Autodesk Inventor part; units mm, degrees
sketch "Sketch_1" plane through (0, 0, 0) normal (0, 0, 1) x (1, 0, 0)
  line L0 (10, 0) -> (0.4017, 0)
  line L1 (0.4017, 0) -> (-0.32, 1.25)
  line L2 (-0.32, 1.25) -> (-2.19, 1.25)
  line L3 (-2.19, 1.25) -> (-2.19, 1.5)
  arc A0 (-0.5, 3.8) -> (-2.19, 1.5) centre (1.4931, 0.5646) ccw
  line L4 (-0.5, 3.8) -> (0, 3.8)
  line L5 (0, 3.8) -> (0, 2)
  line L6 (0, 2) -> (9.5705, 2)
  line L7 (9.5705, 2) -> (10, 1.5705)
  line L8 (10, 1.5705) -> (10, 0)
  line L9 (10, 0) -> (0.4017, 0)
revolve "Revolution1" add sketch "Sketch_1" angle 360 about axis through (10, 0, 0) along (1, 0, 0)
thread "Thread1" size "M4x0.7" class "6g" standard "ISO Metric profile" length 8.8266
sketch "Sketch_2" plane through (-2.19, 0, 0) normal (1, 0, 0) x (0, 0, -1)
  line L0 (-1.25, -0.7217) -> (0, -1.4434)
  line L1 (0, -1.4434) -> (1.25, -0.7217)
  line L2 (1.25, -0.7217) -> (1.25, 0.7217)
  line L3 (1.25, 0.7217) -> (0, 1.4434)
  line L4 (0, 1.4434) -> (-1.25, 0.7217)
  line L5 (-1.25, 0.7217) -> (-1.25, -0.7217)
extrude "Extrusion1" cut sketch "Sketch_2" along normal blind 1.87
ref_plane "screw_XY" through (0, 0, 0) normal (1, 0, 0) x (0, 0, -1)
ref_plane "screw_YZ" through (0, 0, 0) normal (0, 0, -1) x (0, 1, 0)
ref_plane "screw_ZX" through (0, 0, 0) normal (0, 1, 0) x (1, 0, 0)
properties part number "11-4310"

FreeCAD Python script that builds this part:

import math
import FreeCAD as App
import Part
import Sketcher
Q = App.Units.Quantity


def add_polygon(sketch, points):
    """Adds a closed chain of lines whose ends are joined by coincident constraints."""
    first, n = sketch.GeometryCount, len(points)
    for a, b in zip(points, points[1:] + points[:1]):
        sketch.addGeometry(Part.LineSegment(App.Vector(*a, 0), App.Vector(*b, 0)), False)
    for i in range(n):
        sketch.addConstraint(Sketcher.Constraint("Coincident", first + i, 2, first + (i + 1) % n, 1))

doc = App.newDocument("Part")
params = doc.addObject("Spreadsheet::Sheet", "Params")
for row, (alias, value) in enumerate([
    ("sketch1_radius", "3.8 mm"),
    ("sketch1_width", "0.5 mm"),
    ("sketch1_height", "1.8 mm"),
    ("sketch1_width2", "1.87 mm"),
    ("sketch1_height2", "0.25 mm"),
    ("revolution_angle", "360 deg"),
    ("pocket1_length", "1.87 mm"),
], start=1):
    params.set(f"A{row}", alias)
    params.set(f"B{row}", "=" + value)
    params.setAlias(f"B{row}", alias)

body = doc.addObject("PartDesign::Body", "Body")

sketch1 = doc.addObject("Sketcher::SketchObject", "Sketch")
body.addObject(sketch1)
sketch1.AttachmentSupport = (doc.XY_Plane, [""])
sketch1.MapMode = "FlatFace"
sketch1.addGeometry([
    Part.LineSegment(App.Vector(0.4, 0, 0), App.Vector(10, 0, 0)),
    Part.LineSegment(App.Vector(10, 0, 0), App.Vector(10, 1.57, 0)),
    Part.LineSegment(App.Vector(10, 1.57, 0), App.Vector(9.57, 2, 0)),
    Part.LineSegment(App.Vector(9.57, 2, 0), App.Vector(0, 2, 0)),
    Part.LineSegment(App.Vector(0, 2, 0), App.Vector(0, 3.8, 0)),
    Part.LineSegment(App.Vector(0, 3.8, 0), App.Vector(-0.5, 3.8, 0)),
    Part.ArcOfCircle(Part.Circle(App.Vector(1.49, 0.56, 0), App.Vector(0, 0, 1), 3.8), math.radians(122), math.radians(166)),
    Part.LineSegment(App.Vector(-2.19, 1.5, 0), App.Vector(-2.19, 1.25, 0)),
    Part.LineSegment(App.Vector(-2.19, 1.25, 0), App.Vector(-0.32, 1.25, 0)),
    Part.LineSegment(App.Vector(-0.32, 1.25, 0), App.Vector(0.4, 0, 0)),
], False)
sketch1.addConstraint([
    Sketcher.Constraint("Coincident", 0, 2, 1, 1),
    Sketcher.Constraint("Coincident", 1, 2, 2, 1),
    Sketcher.Constraint("Coincident", 2, 2, 3, 1),
    Sketcher.Constraint("Coincident", 3, 2, 4, 1),
    Sketcher.Constraint("Coincident", 4, 2, 5, 1),
    Sketcher.Constraint("Coincident", 5, 2, 6, 1),
    Sketcher.Constraint("Coincident", 6, 2, 7, 1),
    Sketcher.Constraint("Coincident", 7, 2, 8, 1),
    Sketcher.Constraint("Coincident", 8, 2, 9, 1),
    Sketcher.Constraint("Coincident", 9, 2, 0, 1),
    Sketcher.Constraint("Horizontal", 0),
    Sketcher.Constraint("Vertical", 1),
    Sketcher.Constraint("Horizontal", 3),
    Sketcher.Constraint("Vertical", 4),
    Sketcher.Constraint("Horizontal", 5),
    Sketcher.Constraint("Vertical", 7),
    Sketcher.Constraint("Horizontal", 8),
    Sketcher.Constraint("PointOnObject", 0, 2, -1),
    Sketcher.Constraint("PointOnObject", 3, 2, -2),
    Sketcher.Constraint("Radius", 6, 3.8),
    Sketcher.Constraint("Angle", 2, Q("135 deg")),
    Sketcher.Constraint("Angle", 9, Q("-59.9996 deg")),
    Sketcher.Constraint("DistanceX", 5, 2, 5, 1, 0.5),
    Sketcher.Constraint("DistanceY", 4, 1, 4, 2, 1.8),
    Sketcher.Constraint("DistanceX", -1, 1, 0, 2, 10.0),
    Sketcher.Constraint("DistanceY", -1, 1, 2, 2, 2.0),
    Sketcher.Constraint("DistanceX", 8, 1, 8, 2, 1.87),
    Sketcher.Constraint("DistanceY", 7, 2, 7, 1, 0.25),
    Sketcher.Constraint("DistanceY", -1, 1, 6, 2, 1.5),
    Sketcher.Constraint("DistanceX", 6, 2, -1, 1, 2.19),
    Sketcher.Constraint("DistanceX", 3, 2, 3, 1, 9.5705),
])
sketch1.setExpression("Constraints[19]", "Params.sketch1_radius")
sketch1.setExpression("Constraints[22]", "Params.sketch1_width")
sketch1.setExpression("Constraints[23]", "Params.sketch1_height")
sketch1.setExpression("Constraints[26]", "Params.sketch1_width2")
sketch1.setExpression("Constraints[27]", "Params.sketch1_height2")
revolution = doc.addObject("PartDesign::Revolution", "Revolution")
body.addObject(revolution)
revolution.Profile = sketch1
revolution.ReferenceAxis = (sketch1, ["H_Axis"])
revolution.setExpression("Angle", "Params.revolution_angle")

sketch2 = doc.addObject("Sketcher::SketchObject", "Sketch001")
body.addObject(sketch2)
sketch2.AttachmentSupport = (doc.YZ_Plane, [""])
sketch2.MapMode = "FlatFace"
sketch2.AttachmentOffset = App.Placement(App.Vector(0, 0, -2.19), App.Rotation())
add_polygon(sketch2, [(0.7, 1.2), (-0.7, 1.2), (-1.4, 0), (-0.7, -1.2), (0.7, -1.2), (1.4, 0)])
sketch2.addConstraint([
    Sketcher.Constraint("Horizontal", 0),
    Sketcher.Constraint("Horizontal", 3),
    Sketcher.Constraint("Symmetric", 0, 2, 3, 2, -1, 1),
    Sketcher.Constraint("Symmetric", 1, 2, 4, 2, -1, 1),
    Sketcher.Constraint("PointOnObject", 1, 2, -1),
    Sketcher.Constraint("Parallel", 2, 5),
    Sketcher.Constraint("Vertical", 0, 2, 2, 2),
    Sketcher.Constraint("Angle", 1, Q("-120.0004 deg")),
    Sketcher.Constraint("DistanceY", 2, 2, 0, 2, 2.5),
    Sketcher.Constraint("DistanceX", 0, 2, 0, 1, 1.4434),
])
pocket1 = doc.addObject("PartDesign::Pocket", "Pocket")
body.addObject(pocket1)
pocket1.Profile = sketch2
pocket1.setExpression("Length", "Params.pocket1_length")
pocket1.Reversed = True

doc.recompute()
